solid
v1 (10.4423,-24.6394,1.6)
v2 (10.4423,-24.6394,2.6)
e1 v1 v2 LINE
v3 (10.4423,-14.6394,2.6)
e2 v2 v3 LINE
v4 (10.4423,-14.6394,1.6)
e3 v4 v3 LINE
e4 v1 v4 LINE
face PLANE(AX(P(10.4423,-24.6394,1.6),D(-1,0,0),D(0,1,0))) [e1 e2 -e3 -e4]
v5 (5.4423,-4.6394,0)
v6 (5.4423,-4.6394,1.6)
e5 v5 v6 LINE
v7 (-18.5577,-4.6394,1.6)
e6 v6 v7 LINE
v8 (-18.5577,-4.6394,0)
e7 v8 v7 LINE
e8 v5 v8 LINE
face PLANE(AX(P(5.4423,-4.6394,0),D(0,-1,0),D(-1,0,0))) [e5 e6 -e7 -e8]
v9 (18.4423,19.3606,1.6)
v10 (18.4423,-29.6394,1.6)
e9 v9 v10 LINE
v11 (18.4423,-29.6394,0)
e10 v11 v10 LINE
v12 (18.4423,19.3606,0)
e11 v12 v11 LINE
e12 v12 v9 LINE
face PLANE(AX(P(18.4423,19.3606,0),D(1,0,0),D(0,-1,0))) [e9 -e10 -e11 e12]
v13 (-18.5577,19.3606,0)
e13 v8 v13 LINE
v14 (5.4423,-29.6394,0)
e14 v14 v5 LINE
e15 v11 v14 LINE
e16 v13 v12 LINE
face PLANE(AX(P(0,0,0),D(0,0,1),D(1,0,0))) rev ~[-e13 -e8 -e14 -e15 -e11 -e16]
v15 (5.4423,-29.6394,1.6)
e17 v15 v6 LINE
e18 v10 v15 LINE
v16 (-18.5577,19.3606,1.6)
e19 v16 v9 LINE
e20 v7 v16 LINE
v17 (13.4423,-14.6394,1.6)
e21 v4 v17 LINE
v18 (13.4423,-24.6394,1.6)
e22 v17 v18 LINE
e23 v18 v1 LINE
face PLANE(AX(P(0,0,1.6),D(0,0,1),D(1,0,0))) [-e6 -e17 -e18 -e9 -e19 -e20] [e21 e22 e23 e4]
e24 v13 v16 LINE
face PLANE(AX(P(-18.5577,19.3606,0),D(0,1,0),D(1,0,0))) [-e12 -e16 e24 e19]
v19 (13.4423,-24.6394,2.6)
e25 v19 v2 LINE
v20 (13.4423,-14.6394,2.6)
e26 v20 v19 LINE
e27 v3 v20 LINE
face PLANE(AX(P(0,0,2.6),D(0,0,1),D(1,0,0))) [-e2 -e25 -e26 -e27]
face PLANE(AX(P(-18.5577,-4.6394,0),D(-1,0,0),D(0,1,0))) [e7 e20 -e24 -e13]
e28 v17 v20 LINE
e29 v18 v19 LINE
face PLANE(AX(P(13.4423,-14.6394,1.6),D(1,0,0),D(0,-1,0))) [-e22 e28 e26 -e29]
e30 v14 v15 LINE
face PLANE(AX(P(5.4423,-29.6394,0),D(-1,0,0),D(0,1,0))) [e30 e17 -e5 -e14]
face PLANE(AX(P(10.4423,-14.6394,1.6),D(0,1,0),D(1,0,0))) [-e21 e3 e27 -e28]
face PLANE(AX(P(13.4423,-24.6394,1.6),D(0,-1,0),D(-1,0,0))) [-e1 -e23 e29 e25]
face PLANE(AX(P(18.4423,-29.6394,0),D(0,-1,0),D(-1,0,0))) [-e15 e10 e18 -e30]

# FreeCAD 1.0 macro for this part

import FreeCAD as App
import Part
import Sketcher

V = App.Vector
Q = App.Units.Quantity

doc = App.newDocument("Part")
body = doc.addObject("PartDesign::Body", "Body")

sketch1 = doc.addObject("Sketcher::SketchObject", "Sketch")
body.addObject(sketch1)
sketch1.AttachmentSupport = (doc.XY_Plane, [""])
sketch1.MapMode = "FlatFace"
sketch1.addGeometry([
    Part.LineSegment(V(18, 19, 0), V(-19, 19, 0)),
    Part.LineSegment(V(-19, 19, 0), V(-19, -5, 0)),
    Part.LineSegment(V(-19, -5, 0), V(5, -5, 0)),
    Part.LineSegment(V(5, -5, 0), V(5, -30, 0)),
    Part.LineSegment(V(5, -30, 0), V(18, -30, 0)),
    Part.LineSegment(V(18, -30, 0), V(18, 19, 0)),
], False)
sketch1.addConstraint([
    Sketcher.Constraint("Coincident", 0, 2, 1, 1),
    Sketcher.Constraint("Coincident", 1, 2, 2, 1),
    Sketcher.Constraint("Coincident", 2, 2, 3, 1),
    Sketcher.Constraint("Coincident", 3, 2, 4, 1),
    Sketcher.Constraint("Coincident", 4, 2, 5, 1),
    Sketcher.Constraint("Coincident", 5, 2, 0, 1),
    Sketcher.Constraint("Horizontal", 0),
    Sketcher.Constraint("Vertical", 1),
    Sketcher.Constraint("Horizontal", 2),
    Sketcher.Constraint("Vertical", 3),
    Sketcher.Constraint("Horizontal", 4),
    Sketcher.Constraint("Vertical", 5),
    Sketcher.Constraint("Equal", 2, 1),
    Sketcher.Constraint("DistanceX", 0, 2, 0, 1, Q("37 mm")),
    Sketcher.Constraint("DistanceX", 2, 1, 2, 2, Q("24 mm")),
    Sketcher.Constraint("DistanceY", 5, 1, 5, 2, Q("49 mm")),
    Sketcher.Constraint("DistanceX", 0, 2, -1, 1, Q("18.5577 mm")),
    Sketcher.Constraint("DistanceY", -1, 1, 0, 2, Q("19.3606 mm")),
])
pad1 = doc.addObject("PartDesign::Pad", "Pad")
body.addObject(pad1)
pad1.Profile = sketch1
pad1.Length = 1.6

sketch2 = doc.addObject("Sketcher::SketchObject", "Sketch001")
body.addObject(sketch2)
sketch2.AttachmentSupport = (doc.XY_Plane, [""])
sketch2.MapMode = "FlatFace"
sketch2.AttachmentOffset = App.Placement(V(0, 0, 1.6), App.Rotation())
sketch2.addGeometry([
    Part.LineSegment(V(13.4, -14.6, 0), V(10.4, -14.6, 0)),
    Part.LineSegment(V(10.4, -14.6, 0), V(10.4, -24.6, 0)),
    Part.LineSegment(V(10.4, -24.6, 0), V(13.4, -24.6, 0)),
    Part.LineSegment(V(13.4, -24.6, 0), V(13.4, -14.6, 0)),
], False)
sketch2.addConstraint([
    Sketcher.Constraint("Coincident", 0, 2, 1, 1),
    Sketcher.Constraint("Coincident", 1, 2, 2, 1),
    Sketcher.Constraint("Coincident", 2, 2, 3, 1),
    Sketcher.Constraint("Coincident", 3, 2, 0, 1),
    Sketcher.Constraint("Horizontal", 0),
    Sketcher.Constraint("Vertical", 1),
    Sketcher.Constraint("Horizontal", 2),
    Sketcher.Constraint("Vertical", 3),
    Sketcher.Constraint("DistanceX", 0, 2, 0, 1, Q("3 mm")),
    Sketcher.Constraint("DistanceY", 1, 2, 1, 1, Q("10 mm")),
    Sketcher.Constraint("DistanceX", -1, 1, 0, 2, Q("10.4423 mm")),
    Sketcher.Constraint("DistanceY", 0, 2, -1, 1, Q("14.6394 mm")),
])
pad2 = doc.addObject("PartDesign::Pad", "Pad001")
body.addObject(pad2)
pad2.Profile = sketch2
pad2.Length = 1

doc.recompute()
